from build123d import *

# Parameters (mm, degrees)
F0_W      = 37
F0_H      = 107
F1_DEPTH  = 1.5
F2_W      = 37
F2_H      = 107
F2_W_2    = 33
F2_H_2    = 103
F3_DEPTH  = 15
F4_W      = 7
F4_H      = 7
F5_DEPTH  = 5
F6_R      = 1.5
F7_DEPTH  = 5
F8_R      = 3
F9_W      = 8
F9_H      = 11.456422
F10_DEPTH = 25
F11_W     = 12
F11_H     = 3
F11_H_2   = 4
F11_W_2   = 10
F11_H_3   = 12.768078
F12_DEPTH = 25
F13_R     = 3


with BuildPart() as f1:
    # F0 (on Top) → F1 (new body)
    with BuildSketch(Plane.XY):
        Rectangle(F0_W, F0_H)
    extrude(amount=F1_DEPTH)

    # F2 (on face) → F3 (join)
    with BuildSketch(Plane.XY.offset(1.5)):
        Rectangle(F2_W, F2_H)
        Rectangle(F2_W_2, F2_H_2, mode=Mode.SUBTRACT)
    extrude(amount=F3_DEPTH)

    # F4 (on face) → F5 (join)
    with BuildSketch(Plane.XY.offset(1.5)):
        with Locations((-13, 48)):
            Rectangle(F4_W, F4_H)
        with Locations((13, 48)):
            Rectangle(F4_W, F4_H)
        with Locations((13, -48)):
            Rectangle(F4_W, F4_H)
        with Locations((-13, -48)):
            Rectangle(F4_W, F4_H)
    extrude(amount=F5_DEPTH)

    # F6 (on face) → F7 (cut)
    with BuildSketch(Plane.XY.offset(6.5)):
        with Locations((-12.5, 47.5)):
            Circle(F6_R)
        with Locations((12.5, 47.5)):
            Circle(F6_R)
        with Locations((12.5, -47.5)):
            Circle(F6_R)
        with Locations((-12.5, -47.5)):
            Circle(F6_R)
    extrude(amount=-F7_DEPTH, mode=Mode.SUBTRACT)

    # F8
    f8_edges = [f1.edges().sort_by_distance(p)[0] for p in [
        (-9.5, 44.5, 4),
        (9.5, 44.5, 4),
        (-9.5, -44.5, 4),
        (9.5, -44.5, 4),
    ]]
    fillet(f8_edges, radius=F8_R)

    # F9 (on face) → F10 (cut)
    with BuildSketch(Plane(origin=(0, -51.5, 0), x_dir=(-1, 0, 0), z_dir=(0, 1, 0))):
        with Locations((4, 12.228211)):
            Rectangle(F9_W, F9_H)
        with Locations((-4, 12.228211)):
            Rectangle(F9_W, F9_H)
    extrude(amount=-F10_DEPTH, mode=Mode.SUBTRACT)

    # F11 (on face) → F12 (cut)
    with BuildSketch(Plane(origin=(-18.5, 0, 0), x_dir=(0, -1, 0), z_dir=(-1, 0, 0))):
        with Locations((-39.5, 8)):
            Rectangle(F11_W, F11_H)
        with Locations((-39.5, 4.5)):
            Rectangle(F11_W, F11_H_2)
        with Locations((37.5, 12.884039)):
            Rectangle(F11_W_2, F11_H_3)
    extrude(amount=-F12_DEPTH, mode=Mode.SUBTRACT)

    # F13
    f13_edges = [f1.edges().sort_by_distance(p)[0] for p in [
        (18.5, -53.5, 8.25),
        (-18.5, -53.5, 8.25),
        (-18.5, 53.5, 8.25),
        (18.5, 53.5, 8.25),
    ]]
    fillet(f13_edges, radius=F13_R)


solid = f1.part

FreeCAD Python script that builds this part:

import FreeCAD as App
import Part
import Sketcher
from FreeCAD import Vector


def edges_at(feature, points):
    """Names of the edges that pass closest to the given points."""
    edges = feature.Shape.Edges
    near = lambda p: min(range(len(edges)), key=lambda i: edges[i].distToShape(Part.Vertex(*p))[0])
    return sorted({f"Edge{near(p) + 1}" for p in points})

doc = App.newDocument("Part")
params = doc.addObject("Spreadsheet::Sheet", "Params")
for row, (alias, value) in enumerate([
    ("sketch1_width", "37 mm"),
    ("sketch1_height", "107 mm"),
    ("pad1_length", "1.5 mm"),
    ("sketch2_width", "37 mm"),
    ("sketch2_width2", "33 mm"),
    ("sketch2_height", "107 mm"),
    ("sketch2_height2", "103 mm"),
    ("pad2_length", "15 mm"),
    ("sketch3_width", "7 mm"),
    ("pad3_length", "5 mm"),
    ("sketch4_diameter", "3 mm"),
    ("pocket1_length", "5 mm"),
    ("fillet_radius", "3 mm"),
    ("sketch5_width", "16 mm"),
    ("pocket2_length", "25 mm"),
    ("sketch6_width", "12 mm"),
    ("sketch6_width2", "10 mm"),
    ("sketch6_height", "7 mm"),
    ("pocket3_length", "25 mm"),
    ("fillet2_radius", "3 mm"),
], start=1):
    params.set(f"A{row}", alias)
    params.set(f"B{row}", "=" + value)
    params.setAlias(f"B{row}", alias)

body = doc.addObject("PartDesign::Body", "Body")

# Sketch on XY plane
sketch1 = doc.addObject("Sketcher::SketchObject", "Sketch")
body.addObject(sketch1)
sketch1.AttachmentSupport = (doc.XY_Plane, [""])
sketch1.MapMode = "FlatFace"
sketch1.addGeometry([
    Part.LineSegment(Vector(-18, 54, 0), Vector(-18, -54, 0)),
    Part.LineSegment(Vector(-18, -54, 0), Vector(18, -54, 0)),
    Part.LineSegment(Vector(18, -54, 0), Vector(18, 54, 0)),
    Part.LineSegment(Vector(18, 54, 0), Vector(-18, 54, 0)),
], False)
sketch1.addConstraint([
    Sketcher.Constraint("Coincident", 0, 2, 1, 1),
    Sketcher.Constraint("Coincident", 1, 2, 2, 1),
    Sketcher.Constraint("Coincident", 2, 2, 3, 1),
    Sketcher.Constraint("Coincident", 3, 2, 0, 1),
    Sketcher.Constraint("Vertical", 0),
    Sketcher.Constraint("Horizontal", 1),
    Sketcher.Constraint("Vertical", 2),
    Sketcher.Constraint("Horizontal", 3),
    Sketcher.Constraint("Symmetric", 0, 2, 2, 2, -1, 1),
    Sketcher.Constraint("DistanceX", 1, 1, 1, 2, 37.0),
    Sketcher.Constraint("DistanceY", 0, 2, 0, 1, 107.0),
])
sketch1.setExpression("Constraints[9]", "Params.sketch1_width")
sketch1.setExpression("Constraints[10]", "Params.sketch1_height")
pad1 = doc.addObject("PartDesign::Pad", "Pad")
body.addObject(pad1)
pad1.Profile = sketch1
pad1.setExpression("Length", "Params.pad1_length")

# Sketch on XY plane
sketch2 = doc.addObject("Sketcher::SketchObject", "Sketch001")
body.addObject(sketch2)
sketch2.AttachmentSupport = (doc.XY_Plane, [""])
sketch2.MapMode = "FlatFace"
sketch2.AttachmentOffset = App.Placement(Vector(0, 0, 1.5), App.Rotation())
sketch2.addGeometry([
    Part.LineSegment(Vector(-18, 54, 0), Vector(-18, -54, 0)),  # 0
    Part.LineSegment(Vector(-18, -54, 0), Vector(18, -54, 0)),  # 1
    Part.LineSegment(Vector(18, -54, 0), Vector(18, 54, 0)),  # 2
    Part.LineSegment(Vector(18, 54, 0), Vector(-18, 54, 0)),  # 3
    Part.LineSegment(Vector(16, -52, 0), Vector(-16, -52, 0)),  # 4
    Part.LineSegment(Vector(-16, -52, 0), Vector(-16, 52, 0)),  # 5
    Part.LineSegment(Vector(-16, 52, 0), Vector(16, 52, 0)),  # 6
    Part.LineSegment(Vector(16, 52, 0), Vector(16, -52, 0)),  # 7
], False)
sketch2.addConstraint([
    Sketcher.Constraint("Coincident", 0, 2, 1, 1),
    Sketcher.Constraint("Coincident", 1, 2, 2, 1),
    Sketcher.Constraint("Coincident", 2, 2, 3, 1),
    Sketcher.Constraint("Coincident", 3, 2, 0, 1),
    Sketcher.Constraint("Coincident", 4, 2, 5, 1),
    Sketcher.Constraint("Coincident", 5, 2, 6, 1),
    Sketcher.Constraint("Coincident", 6, 2, 7, 1),
    Sketcher.Constraint("Coincident", 7, 2, 4, 1),
    Sketcher.Constraint("Vertical", 0),
    Sketcher.Constraint("Horizontal", 1),
    Sketcher.Constraint("Vertical", 2),
    Sketcher.Constraint("Horizontal", 3),
    Sketcher.Constraint("Horizontal", 4),
    Sketcher.Constraint("Vertical", 5),
    Sketcher.Constraint("Horizontal", 6),
    Sketcher.Constraint("Vertical", 7),
    Sketcher.Constraint("Symmetric", 0, 2, 2, 2, -1, 1),
    Sketcher.Constraint("Symmetric", 4, 2, 6, 2, -1, 1),
    Sketcher.Constraint("DistanceX", 1, 1, 1, 2, 37.0),
    Sketcher.Constraint("DistanceX", 4, 2, 4, 1, 33.0),
    Sketcher.Constraint("DistanceY", 0, 2, 0, 1, 107.0),
    Sketcher.Constraint("DistanceY", 5, 1, 5, 2, 103.0),
])
sketch2.setExpression("Constraints[18]", "Params.sketch2_width")
sketch2.setExpression("Constraints[19]", "Params.sketch2_width2")
sketch2.setExpression("Constraints[20]", "Params.sketch2_height")
sketch2.setExpression("Constraints[21]", "Params.sketch2_height2")
pad2 = doc.addObject("PartDesign::Pad", "Pad001")
body.addObject(pad2)
pad2.Profile = sketch2
pad2.setExpression("Length", "Params.pad2_length")

# Sketch on XY plane
sketch3 = doc.addObject("Sketcher::SketchObject", "Sketch002")
body.addObject(sketch3)
sketch3.AttachmentSupport = (doc.XY_Plane, [""])
sketch3.MapMode = "FlatFace"
sketch3.AttachmentOffset = App.Placement(Vector(0, 0, 1.5), App.Rotation())
sketch3.addGeometry([
    Part.LineSegment(Vector(-16, 52, 0), Vector(-16, 44, 0)),  # 0
    Part.LineSegment(Vector(-16, 44, 0), Vector(-10, 44, 0)),  # 1
    Part.LineSegment(Vector(-10, 44, 0), Vector(-10, 52, 0)),  # 2
    Part.LineSegment(Vector(-10, 52, 0), Vector(-16, 52, 0)),  # 3
    Part.LineSegment(Vector(10, 52, 0), Vector(10, 44, 0)),  # 4
    Part.LineSegment(Vector(10, 44, 0), Vector(16, 44, 0)),  # 5
    Part.LineSegment(Vector(16, 44, 0), Vector(16, 52, 0)),  # 6
    Part.LineSegment(Vector(16, 52, 0), Vector(10, 52, 0)),  # 7
    Part.LineSegment(Vector(10, -44, 0), Vector(10, -52, 0)),  # 8
    Part.LineSegment(Vector(10, -52, 0), Vector(16, -52, 0)),  # 9
    Part.LineSegment(Vector(16, -52, 0), Vector(16, -44, 0)),  # 10
    Part.LineSegment(Vector(16, -44, 0), Vector(10, -44, 0)),  # 11
    Part.LineSegment(Vector(-16, -44, 0), Vector(-16, -52, 0)),  # 12
    Part.LineSegment(Vector(-16, -52, 0), Vector(-10, -52, 0)),  # 13
    Part.LineSegment(Vector(-10, -52, 0), Vector(-10, -44, 0)),  # 14
    Part.LineSegment(Vector(-10, -44, 0), Vector(-16, -44, 0)),  # 15
], False)
sketch3.addConstraint([
    Sketcher.Constraint("Coincident", 0, 2, 1, 1),
    Sketcher.Constraint("Coincident", 1, 2, 2, 1),
    Sketcher.Constraint("Coincident", 2, 2, 3, 1),
    Sketcher.Constraint("Coincident", 3, 2, 0, 1),
    Sketcher.Constraint("Coincident", 4, 2, 5, 1),
    Sketcher.Constraint("Coincident", 5, 2, 6, 1),
    Sketcher.Constraint("Coincident", 6, 2, 7, 1),
    Sketcher.Constraint("Coincident", 7, 2, 4, 1),
    Sketcher.Constraint("Coincident", 8, 2, 9, 1),
    Sketcher.Constraint("Coincident", 9, 2, 10, 1),
    Sketcher.Constraint("Coincident", 10, 2, 11, 1),
    Sketcher.Constraint("Coincident", 11, 2, 8, 1),
    Sketcher.Constraint("Coincident", 12, 2, 13, 1),
    Sketcher.Constraint("Coincident", 13, 2, 14, 1),
    Sketcher.Constraint("Coincident", 14, 2, 15, 1),
    Sketcher.Constraint("Coincident", 15, 2, 12, 1),
    Sketcher.Constraint("Vertical", 0),
    Sketcher.Constraint("Horizontal", 1),
    Sketcher.Constraint("Vertical", 2),
    Sketcher.Constraint("Horizontal", 3),
    Sketcher.Constraint("Vertical", 4),
    Sketcher.Constraint("Horizontal", 5),
    Sketcher.Constraint("Vertical", 6),
    Sketcher.Constraint("Horizontal", 7),
    Sketcher.Constraint("Vertical", 8),
    Sketcher.Constraint("Horizontal", 9),
    Sketcher.Constraint("Vertical", 10),
    Sketcher.Constraint("Horizontal", 11),
    Sketcher.Constraint("Vertical", 12),
    Sketcher.Constraint("Horizontal", 13),
    Sketcher.Constraint("Vertical", 14),
    Sketcher.Constraint("Horizontal", 15),
    Sketcher.Constraint("Symmetric", 2, 2, 8, 2, -1, 1),
    Sketcher.Constraint("Symmetric", 0, 2, 10, 2, -1, 1),
    Sketcher.Constraint("Symmetric", 6, 2, 12, 2, -1, 1),
    Sketcher.Constraint("Symmetric", 4, 2, 14, 2, -1, 1),
    Sketcher.Constraint("Symmetric", 1, 2, 4, 2, -2),
    Sketcher.Constraint("Symmetric", 3, 2, 6, 2, -2),
    Sketcher.Constraint("Equal", 15, 0),
    Sketcher.Constraint("DistanceX", 1, 1, 1, 2, 7.0),
    Sketcher.Constraint("DistanceX", 1, 2, 4, 2, 19.0),
    Sketcher.Constraint("DistanceY", 8, 2, 4, 2, 96.0),
])
sketch3.setExpression("Constraints[39]", "Params.sketch3_width")
pad3 = doc.addObject("PartDesign::Pad", "Pad002")
body.addObject(pad3)
pad3.Profile = sketch3
pad3.setExpression("Length", "Params.pad3_length")

# Sketch on XY plane
sketch4 = doc.addObject("Sketcher::SketchObject", "Sketch003")
body.addObject(sketch4)
sketch4.AttachmentSupport = (doc.XY_Plane, [""])
sketch4.MapMode = "FlatFace"
sketch4.AttachmentOffset = App.Placement(Vector(0, 0, 6.5), App.Rotation())
sketch4.addGeometry([
    Part.Circle(Vector(-12.5, 47.5, 0), Vector(0, 0, 1), 1.5),
    Part.Circle(Vector(12.5, 47.5, 0), Vector(0, 0, 1), 1.5),
    Part.Circle(Vector(12.5, -47.5, 0), Vector(0, 0, 1), 1.5),
    Part.Circle(Vector(-12.5, -47.5, 0), Vector(0, 0, 1), 1.5),
], False)
sketch4.addConstraint([
    Sketcher.Constraint("Equal", 0, 1),
    Sketcher.Constraint("Equal", 1, 2),
    Sketcher.Constraint("Equal", 2, 3),
    Sketcher.Constraint("Symmetric", 0, 3, 2, 3, -1, 1),
    Sketcher.Constraint("Symmetric", 1, 3, 3, 3, -1, 1),
    Sketcher.Constraint("Symmetric", 0, 3, 1, 3, -2),
    Sketcher.Constraint("Diameter", 0, 3.0),
    Sketcher.Constraint("DistanceX", 0, 3, 1, 3, 25.0),
    Sketcher.Constraint("DistanceY", 2, 3, 1, 3, 95.0),
])
sketch4.setExpression("Constraints[6]", "Params.sketch4_diameter")
pocket1 = doc.addObject("PartDesign::Pocket", "Pocket")
body.addObject(pocket1)
pocket1.Profile = sketch4
pocket1.setExpression("Length", "Params.pocket1_length")
doc.recompute()

fillet = doc.addObject("PartDesign::Fillet", "Fillet")
body.addObject(fillet)
fillet.Base = (pocket1, edges_at(pocket1, [
    (-9.5, 44.5, 4),
    (9.5, 44.5, 4),
    (-9.5, -44.5, 4),
    (9.5, -44.5, 4),
]))
fillet.setExpression("Radius", "Params.fillet_radius")

# Sketch on XZ plane
sketch5 = doc.addObject("Sketcher::SketchObject", "Sketch004")
body.addObject(sketch5)
sketch5.AttachmentSupport = (doc.XZ_Plane, [""])
sketch5.MapMode = "FlatFace"
sketch5.AttachmentOffset = App.Placement(Vector(0, 0, 51.5), App.Rotation())
sketch5.addGeometry([
    Part.LineSegment(Vector(-8, 6, 0), Vector(-8, 18, 0)),
    Part.LineSegment(Vector(-8, 18, 0), Vector(8, 18, 0)),
    Part.LineSegment(Vector(8, 18, 0), Vector(8, 6, 0)),
    Part.LineSegment(Vector(8, 6, 0), Vector(-8, 6, 0)),
], False)
sketch5.addConstraint([
    Sketcher.Constraint("Coincident", 0, 2, 1, 1),
    Sketcher.Constraint("Coincident", 1, 2, 2, 1),
    Sketcher.Constraint("Coincident", 2, 2, 3, 1),
    Sketcher.Constraint("Coincident", 3, 2, 0, 1),
    Sketcher.Constraint("Vertical", 0),
    Sketcher.Constraint("Horizontal", 1),
    Sketcher.Constraint("Vertical", 2),
    Sketcher.Constraint("Horizontal", 3),
    Sketcher.Constraint("DistanceX", 1, 1, 1, 2, 16.0),
    Sketcher.Constraint("DistanceX", 0, 2, -1, 1, 8.0),
    Sketcher.Constraint("DistanceY", -1, 1, 2, 2, 6.5),
    Sketcher.Constraint("DistanceY", 0, 1, 0, 2, 11.456422),
])
sketch5.setExpression("Constraints[8]", "Params.sketch5_width")
pocket2 = doc.addObject("PartDesign::Pocket", "Pocket001")
body.addObject(pocket2)
pocket2.Profile = sketch5
pocket2.setExpression("Length", "Params.pocket2_length")
pocket2.Reversed = True

# Sketch on YZ plane
sketch6 = doc.addObject("Sketcher::SketchObject", "Sketch005")
body.addObject(sketch6)
sketch6.AttachmentSupport = (doc.YZ_Plane, [""])
sketch6.MapMode = "FlatFace"
sketch6.AttachmentOffset = App.Placement(Vector(0, 0, -18.5), App.Rotation())
sketch6.addGeometry([
    Part.LineSegment(Vector(46, 10, 0), Vector(46, 2, 0)),  # 0
    Part.LineSegment(Vector(46, 2, 0), Vector(34, 2, 0)),  # 1
    Part.LineSegment(Vector(34, 2, 0), Vector(34, 10, 0)),  # 2
    Part.LineSegment(Vector(34, 10, 0), Vector(46, 10, 0)),  # 3
    Part.LineSegment(Vector(-32, 19, 0), Vector(-32, 6, 0)),  # 4
    Part.LineSegment(Vector(-32, 6, 0), Vector(-42, 6, 0)),  # 5
    Part.LineSegment(Vector(-42, 6, 0), Vector(-42, 19, 0)),  # 6
    Part.LineSegment(Vector(-42, 19, 0), Vector(-32, 19, 0)),  # 7
], False)
sketch6.addConstraint([
    Sketcher.Constraint("Coincident", 0, 2, 1, 1),
    Sketcher.Constraint("Coincident", 1, 2, 2, 1),
    Sketcher.Constraint("Coincident", 2, 2, 3, 1),
    Sketcher.Constraint("Coincident", 3, 2, 0, 1),
    Sketcher.Constraint("Coincident", 4, 2, 5, 1),
    Sketcher.Constraint("Coincident", 5, 2, 6, 1),
    Sketcher.Constraint("Coincident", 6, 2, 7, 1),
    Sketcher.Constraint("Coincident", 7, 2, 4, 1),
    Sketcher.Constraint("Vertical", 0),
    Sketcher.Constraint("Horizontal", 1),
    Sketcher.Constraint("Vertical", 2),
    Sketcher.Constraint("Horizontal", 3),
    Sketcher.Constraint("Vertical", 4),
    Sketcher.Constraint("Horizontal", 5),
    Sketcher.Constraint("Vertical", 6),
    Sketcher.Constraint("Horizontal", 7),
    Sketcher.Constraint("DistanceX", 1, 2, 1, 1, 12.0),
    Sketcher.Constraint("DistanceX", 5, 2, 5, 1, 10.0),
    Sketcher.Constraint("DistanceY", 0, 2, 0, 1, 7.0),
    Sketcher.Constraint("DistanceX", 4, 2, 2, 2, 66.0),
    Sketcher.Constraint("DistanceY", 4, 2, 2, 2, 3.0),
    Sketcher.Constraint("DistanceX", -1, 1, 0, 2, 45.5),
    Sketcher.Constraint("DistanceY", -1, 1, 0, 2, 2.5),
    Sketcher.Constraint("DistanceY", 4, 2, 4, 1, 12.768078),
])
sketch6.setExpression("Constraints[16]", "Params.sketch6_width")
sketch6.setExpression("Constraints[17]", "Params.sketch6_width2")
sketch6.setExpression("Constraints[18]", "Params.sketch6_height")
pocket3 = doc.addObject("PartDesign::Pocket", "Pocket002")
body.addObject(pocket3)
pocket3.Profile = sketch6
pocket3.setExpression("Length", "Params.pocket3_length")
pocket3.Reversed = True
doc.recompute()

fillet2 = doc.addObject("PartDesign::Fillet", "Fillet001")
body.addObject(fillet2)
fillet2.Base = (pocket3, edges_at(pocket3, [
    (18.5, -53.5, 8.25),
    (-18.5, -53.5, 8.25),
    (-18.5, 53.5, 8.25),
    (18.5, 53.5, 8.25),
]))
fillet2.setExpression("Radius", "Params.fillet2_radius")

doc.recompute()
